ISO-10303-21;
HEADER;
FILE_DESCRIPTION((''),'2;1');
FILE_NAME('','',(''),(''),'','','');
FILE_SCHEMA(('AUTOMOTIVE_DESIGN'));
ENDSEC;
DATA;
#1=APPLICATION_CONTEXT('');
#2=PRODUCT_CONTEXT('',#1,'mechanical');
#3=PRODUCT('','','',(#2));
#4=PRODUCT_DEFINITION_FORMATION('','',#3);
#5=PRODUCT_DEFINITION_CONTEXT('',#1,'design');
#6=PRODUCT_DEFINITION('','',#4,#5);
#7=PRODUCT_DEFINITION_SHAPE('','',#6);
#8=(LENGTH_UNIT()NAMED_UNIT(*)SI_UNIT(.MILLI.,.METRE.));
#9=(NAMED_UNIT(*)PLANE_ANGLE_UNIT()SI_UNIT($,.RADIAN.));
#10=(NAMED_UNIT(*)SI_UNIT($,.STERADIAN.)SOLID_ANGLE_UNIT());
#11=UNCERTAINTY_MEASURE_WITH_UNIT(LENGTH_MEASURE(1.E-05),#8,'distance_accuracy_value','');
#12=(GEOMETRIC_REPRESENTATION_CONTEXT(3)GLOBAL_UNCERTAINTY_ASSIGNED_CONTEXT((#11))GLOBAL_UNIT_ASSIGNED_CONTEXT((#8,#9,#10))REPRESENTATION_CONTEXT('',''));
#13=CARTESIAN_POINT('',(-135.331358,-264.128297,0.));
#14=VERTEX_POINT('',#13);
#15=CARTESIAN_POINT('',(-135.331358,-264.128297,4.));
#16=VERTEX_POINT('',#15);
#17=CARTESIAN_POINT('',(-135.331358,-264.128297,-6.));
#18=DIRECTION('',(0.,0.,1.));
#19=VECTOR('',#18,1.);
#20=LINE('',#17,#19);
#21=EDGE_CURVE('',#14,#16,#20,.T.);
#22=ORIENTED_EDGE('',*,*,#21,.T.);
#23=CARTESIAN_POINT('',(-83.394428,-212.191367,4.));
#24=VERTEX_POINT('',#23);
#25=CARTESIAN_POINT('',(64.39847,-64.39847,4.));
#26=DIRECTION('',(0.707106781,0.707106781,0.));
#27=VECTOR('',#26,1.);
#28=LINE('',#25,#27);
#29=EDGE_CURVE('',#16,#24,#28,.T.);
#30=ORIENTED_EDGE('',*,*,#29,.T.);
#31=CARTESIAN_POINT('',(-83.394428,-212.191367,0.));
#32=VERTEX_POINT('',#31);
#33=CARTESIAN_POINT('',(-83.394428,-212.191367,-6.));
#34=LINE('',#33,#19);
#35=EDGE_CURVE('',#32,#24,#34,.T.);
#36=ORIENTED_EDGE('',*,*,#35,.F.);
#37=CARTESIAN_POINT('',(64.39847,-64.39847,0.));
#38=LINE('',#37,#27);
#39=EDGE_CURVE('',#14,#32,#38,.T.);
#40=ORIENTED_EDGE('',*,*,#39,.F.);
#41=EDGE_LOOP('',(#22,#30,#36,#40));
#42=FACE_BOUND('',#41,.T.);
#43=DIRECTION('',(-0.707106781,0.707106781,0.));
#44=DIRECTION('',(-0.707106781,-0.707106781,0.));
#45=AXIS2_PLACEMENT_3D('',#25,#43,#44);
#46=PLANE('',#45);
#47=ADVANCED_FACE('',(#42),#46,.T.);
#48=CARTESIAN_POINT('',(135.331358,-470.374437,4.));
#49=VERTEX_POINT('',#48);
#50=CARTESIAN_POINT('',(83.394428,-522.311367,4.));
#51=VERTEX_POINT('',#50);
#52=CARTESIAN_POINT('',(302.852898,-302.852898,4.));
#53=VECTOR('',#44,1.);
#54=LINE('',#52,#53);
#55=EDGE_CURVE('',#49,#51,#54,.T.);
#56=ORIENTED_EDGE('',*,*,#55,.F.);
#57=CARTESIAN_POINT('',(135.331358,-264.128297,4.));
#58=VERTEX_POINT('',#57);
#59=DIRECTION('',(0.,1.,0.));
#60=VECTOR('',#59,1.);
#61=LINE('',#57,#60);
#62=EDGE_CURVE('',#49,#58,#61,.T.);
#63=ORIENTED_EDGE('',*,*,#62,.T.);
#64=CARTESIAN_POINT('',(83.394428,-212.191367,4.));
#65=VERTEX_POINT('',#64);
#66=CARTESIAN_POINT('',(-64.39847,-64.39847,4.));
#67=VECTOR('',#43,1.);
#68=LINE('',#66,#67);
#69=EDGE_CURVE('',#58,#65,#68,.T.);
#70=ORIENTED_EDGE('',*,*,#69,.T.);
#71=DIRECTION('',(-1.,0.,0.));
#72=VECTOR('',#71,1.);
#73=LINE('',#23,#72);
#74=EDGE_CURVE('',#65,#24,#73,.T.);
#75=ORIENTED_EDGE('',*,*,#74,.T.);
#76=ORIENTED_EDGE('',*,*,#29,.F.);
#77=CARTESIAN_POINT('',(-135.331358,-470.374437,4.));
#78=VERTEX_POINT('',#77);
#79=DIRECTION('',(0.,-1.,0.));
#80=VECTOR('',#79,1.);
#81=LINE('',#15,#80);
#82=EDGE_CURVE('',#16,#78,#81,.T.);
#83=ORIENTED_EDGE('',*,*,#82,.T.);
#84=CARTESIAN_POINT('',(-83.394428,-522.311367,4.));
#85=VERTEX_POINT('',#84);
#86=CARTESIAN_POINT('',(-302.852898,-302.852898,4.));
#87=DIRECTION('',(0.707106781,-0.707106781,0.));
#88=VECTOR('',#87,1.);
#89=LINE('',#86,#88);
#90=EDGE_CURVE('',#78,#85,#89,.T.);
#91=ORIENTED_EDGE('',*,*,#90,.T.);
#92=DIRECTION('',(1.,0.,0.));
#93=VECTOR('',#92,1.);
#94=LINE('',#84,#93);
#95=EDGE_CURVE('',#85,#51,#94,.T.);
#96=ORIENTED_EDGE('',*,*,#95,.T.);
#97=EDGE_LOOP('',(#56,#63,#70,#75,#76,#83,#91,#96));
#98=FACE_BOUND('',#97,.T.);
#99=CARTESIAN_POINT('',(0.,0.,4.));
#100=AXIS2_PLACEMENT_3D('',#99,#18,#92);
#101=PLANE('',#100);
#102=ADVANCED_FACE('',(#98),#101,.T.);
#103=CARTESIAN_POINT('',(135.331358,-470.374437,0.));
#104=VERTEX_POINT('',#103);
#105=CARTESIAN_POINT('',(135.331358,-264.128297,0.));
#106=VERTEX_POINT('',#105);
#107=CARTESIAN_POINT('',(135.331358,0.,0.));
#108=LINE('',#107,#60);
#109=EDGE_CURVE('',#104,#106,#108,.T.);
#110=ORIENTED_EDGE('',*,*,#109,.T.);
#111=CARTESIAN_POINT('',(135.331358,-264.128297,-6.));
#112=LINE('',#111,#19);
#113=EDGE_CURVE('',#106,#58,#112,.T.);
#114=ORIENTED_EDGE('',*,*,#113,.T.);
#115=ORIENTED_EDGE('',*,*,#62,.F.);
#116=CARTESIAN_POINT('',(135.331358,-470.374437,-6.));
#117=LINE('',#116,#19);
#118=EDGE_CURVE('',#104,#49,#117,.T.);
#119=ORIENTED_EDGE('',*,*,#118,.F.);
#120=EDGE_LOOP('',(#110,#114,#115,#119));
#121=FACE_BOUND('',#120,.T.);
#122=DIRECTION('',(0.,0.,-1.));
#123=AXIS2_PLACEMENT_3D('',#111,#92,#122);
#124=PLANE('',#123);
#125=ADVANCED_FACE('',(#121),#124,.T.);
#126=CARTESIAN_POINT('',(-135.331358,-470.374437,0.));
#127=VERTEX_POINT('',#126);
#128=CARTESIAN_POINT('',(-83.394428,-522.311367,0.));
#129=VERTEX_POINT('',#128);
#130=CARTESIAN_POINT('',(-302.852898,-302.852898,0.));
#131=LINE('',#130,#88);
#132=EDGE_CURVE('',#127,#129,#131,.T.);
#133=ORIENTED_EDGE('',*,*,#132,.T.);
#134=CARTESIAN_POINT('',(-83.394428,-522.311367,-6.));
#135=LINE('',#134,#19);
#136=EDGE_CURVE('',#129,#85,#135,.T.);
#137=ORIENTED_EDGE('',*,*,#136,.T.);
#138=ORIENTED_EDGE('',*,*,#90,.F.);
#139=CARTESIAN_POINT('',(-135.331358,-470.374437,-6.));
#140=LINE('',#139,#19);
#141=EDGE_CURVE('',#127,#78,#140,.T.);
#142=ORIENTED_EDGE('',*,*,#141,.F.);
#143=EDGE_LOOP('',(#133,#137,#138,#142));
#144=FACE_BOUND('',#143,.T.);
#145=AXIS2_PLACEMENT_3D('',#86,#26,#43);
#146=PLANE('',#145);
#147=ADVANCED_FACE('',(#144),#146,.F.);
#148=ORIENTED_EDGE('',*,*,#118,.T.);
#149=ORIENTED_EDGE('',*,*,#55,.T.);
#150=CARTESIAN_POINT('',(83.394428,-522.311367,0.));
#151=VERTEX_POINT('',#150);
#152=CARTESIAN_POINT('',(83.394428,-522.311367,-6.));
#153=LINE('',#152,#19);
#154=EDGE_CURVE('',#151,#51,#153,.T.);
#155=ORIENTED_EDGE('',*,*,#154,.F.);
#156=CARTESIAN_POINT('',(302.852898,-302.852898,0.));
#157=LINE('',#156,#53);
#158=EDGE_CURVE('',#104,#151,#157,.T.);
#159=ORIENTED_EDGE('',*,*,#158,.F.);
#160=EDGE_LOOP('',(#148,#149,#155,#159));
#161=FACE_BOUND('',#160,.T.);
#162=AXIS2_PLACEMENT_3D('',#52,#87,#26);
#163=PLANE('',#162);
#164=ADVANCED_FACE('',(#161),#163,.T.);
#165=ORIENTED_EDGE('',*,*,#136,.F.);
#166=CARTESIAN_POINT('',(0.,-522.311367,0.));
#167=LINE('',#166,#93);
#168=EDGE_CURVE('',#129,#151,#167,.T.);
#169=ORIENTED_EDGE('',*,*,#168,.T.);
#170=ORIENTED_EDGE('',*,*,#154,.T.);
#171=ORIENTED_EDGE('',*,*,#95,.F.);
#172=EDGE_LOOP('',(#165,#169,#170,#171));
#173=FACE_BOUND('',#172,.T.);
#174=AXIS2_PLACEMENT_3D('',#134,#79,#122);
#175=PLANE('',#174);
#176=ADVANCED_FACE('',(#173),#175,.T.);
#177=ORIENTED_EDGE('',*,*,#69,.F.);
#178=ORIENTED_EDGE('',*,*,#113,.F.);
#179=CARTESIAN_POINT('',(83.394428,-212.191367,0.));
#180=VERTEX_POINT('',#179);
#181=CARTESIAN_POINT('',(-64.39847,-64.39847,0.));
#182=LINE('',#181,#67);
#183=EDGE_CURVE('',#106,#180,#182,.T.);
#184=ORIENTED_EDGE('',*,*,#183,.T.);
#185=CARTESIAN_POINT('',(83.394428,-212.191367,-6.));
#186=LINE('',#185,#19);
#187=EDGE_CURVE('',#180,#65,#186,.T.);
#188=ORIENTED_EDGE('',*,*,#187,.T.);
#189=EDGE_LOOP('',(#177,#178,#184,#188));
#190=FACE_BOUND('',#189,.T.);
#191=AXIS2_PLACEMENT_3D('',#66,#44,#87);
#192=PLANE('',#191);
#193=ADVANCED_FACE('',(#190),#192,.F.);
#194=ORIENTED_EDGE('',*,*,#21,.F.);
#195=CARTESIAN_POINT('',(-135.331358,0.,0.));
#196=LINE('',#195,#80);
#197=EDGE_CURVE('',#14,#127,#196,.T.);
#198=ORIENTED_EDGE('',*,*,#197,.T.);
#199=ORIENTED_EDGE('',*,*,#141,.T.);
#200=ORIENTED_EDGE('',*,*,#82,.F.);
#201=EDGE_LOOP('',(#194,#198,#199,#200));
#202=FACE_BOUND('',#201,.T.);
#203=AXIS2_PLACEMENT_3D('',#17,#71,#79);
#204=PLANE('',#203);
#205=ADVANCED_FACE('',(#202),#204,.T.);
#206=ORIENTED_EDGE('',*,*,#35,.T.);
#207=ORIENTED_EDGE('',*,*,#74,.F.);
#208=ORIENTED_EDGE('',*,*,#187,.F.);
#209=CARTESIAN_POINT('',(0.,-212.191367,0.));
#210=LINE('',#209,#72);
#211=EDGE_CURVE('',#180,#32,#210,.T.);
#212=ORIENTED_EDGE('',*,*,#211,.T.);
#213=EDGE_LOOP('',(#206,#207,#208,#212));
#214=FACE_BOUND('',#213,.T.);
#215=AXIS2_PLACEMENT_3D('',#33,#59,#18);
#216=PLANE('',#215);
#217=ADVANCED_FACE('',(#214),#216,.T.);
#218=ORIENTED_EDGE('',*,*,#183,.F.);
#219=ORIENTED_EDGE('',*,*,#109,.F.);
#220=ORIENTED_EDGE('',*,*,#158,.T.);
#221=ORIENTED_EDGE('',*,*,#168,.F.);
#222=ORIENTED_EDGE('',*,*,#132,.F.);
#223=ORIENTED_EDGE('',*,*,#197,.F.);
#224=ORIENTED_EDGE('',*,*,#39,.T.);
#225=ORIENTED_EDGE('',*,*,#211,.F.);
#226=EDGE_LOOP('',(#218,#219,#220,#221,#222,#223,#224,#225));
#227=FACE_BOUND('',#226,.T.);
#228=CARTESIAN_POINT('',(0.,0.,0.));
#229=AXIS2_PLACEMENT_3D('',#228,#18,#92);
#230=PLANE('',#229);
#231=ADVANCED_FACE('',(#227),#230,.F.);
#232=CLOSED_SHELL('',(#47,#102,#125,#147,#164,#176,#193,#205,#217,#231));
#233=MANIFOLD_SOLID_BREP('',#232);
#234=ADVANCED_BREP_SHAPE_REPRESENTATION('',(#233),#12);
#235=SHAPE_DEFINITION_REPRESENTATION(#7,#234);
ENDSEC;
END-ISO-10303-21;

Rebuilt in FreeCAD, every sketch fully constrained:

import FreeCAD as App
import Part
import Sketcher
from FreeCAD import Vector
Q = App.Units.Quantity

doc = App.newDocument("Part")
body = doc.addObject("PartDesign::Body", "Body")

# Sketch on XY plane
sketch1 = body.newObject("Sketcher::SketchObject", "Sketch")
sketch1.AttachmentSupport = (doc.getObject("XY_Plane"), [""])
sketch1.MapMode = "FlatFace"
sketch1.addGeometry(Part.LineSegment(Vector(89, -197, 0), Vector(-89, -197, 0)), False)
sketch1.addGeometry(Part.LineSegment(Vector(-89, -197, 0), Vector(-89, -218, 0)), False)
sketch1.addGeometry(Part.LineSegment(Vector(-89, -218, 0), Vector(-129, -258, 0)), False)
sketch1.addGeometry(Part.LineSegment(Vector(-129, -258, 0), Vector(-150, -258, 0)), False)
sketch1.addGeometry(Part.LineSegment(Vector(-150, -258, 0), Vector(-150, -476, 0)), False)
sketch1.addGeometry(Part.LineSegment(Vector(-150, -476, 0), Vector(-129, -476, 0)), False)
sketch1.addGeometry(Part.LineSegment(Vector(-129, -476, 0), Vector(-89, -517, 0)), False)
sketch1.addGeometry(Part.LineSegment(Vector(-89, -517, 0), Vector(-89, -537, 0)), False)
sketch1.addGeometry(Part.LineSegment(Vector(-89, -537, 0), Vector(89, -537, 0)), False)
sketch1.addGeometry(Part.LineSegment(Vector(89, -537, 0), Vector(89, -517, 0)), False)
sketch1.addGeometry(Part.LineSegment(Vector(89, -517, 0), Vector(129, -476, 0)), False)
sketch1.addGeometry(Part.LineSegment(Vector(129, -476, 0), Vector(150, -476, 0)), False)
sketch1.addGeometry(Part.LineSegment(Vector(150, -476, 0), Vector(150, -258, 0)), False)
sketch1.addGeometry(Part.LineSegment(Vector(150, -258, 0), Vector(129, -258, 0)), False)
sketch1.addGeometry(Part.LineSegment(Vector(129, -258, 0), Vector(89, -218, 0)), False)
sketch1.addGeometry(Part.LineSegment(Vector(89, -218, 0), Vector(89, -197, 0)), False)
sketch1.addConstraint(Sketcher.Constraint("Coincident", 0, 2, 1, 1))
sketch1.addConstraint(Sketcher.Constraint("Coincident", 1, 2, 2, 1))
sketch1.addConstraint(Sketcher.Constraint("Coincident", 2, 2, 3, 1))
sketch1.addConstraint(Sketcher.Constraint("Coincident", 3, 2, 4, 1))
sketch1.addConstraint(Sketcher.Constraint("Coincident", 4, 2, 5, 1))
sketch1.addConstraint(Sketcher.Constraint("Coincident", 5, 2, 6, 1))
sketch1.addConstraint(Sketcher.Constraint("Coincident", 6, 2, 7, 1))
sketch1.addConstraint(Sketcher.Constraint("Coincident", 7, 2, 8, 1))
sketch1.addConstraint(Sketcher.Constraint("Coincident", 8, 2, 9, 1))
sketch1.addConstraint(Sketcher.Constraint("Coincident", 9, 2, 10, 1))
sketch1.addConstraint(Sketcher.Constraint("Coincident", 10, 2, 11, 1))
sketch1.addConstraint(Sketcher.Constraint("Coincident", 11, 2, 12, 1))
sketch1.addConstraint(Sketcher.Constraint("Coincident", 12, 2, 13, 1))
sketch1.addConstraint(Sketcher.Constraint("Coincident", 13, 2, 14, 1))
sketch1.addConstraint(Sketcher.Constraint("Coincident", 14, 2, 15, 1))
sketch1.addConstraint(Sketcher.Constraint("Coincident", 15, 2, 0, 1))
sketch1.addConstraint(Sketcher.Constraint("Horizontal", 0))
sketch1.addConstraint(Sketcher.Constraint("Vertical", 1))
sketch1.addConstraint(Sketcher.Constraint("Horizontal", 3))
sketch1.addConstraint(Sketcher.Constraint("Vertical", 4))
sketch1.addConstraint(Sketcher.Constraint("Horizontal", 5))
sketch1.addConstraint(Sketcher.Constraint("Vertical", 7))
sketch1.addConstraint(Sketcher.Constraint("Horizontal", 8))
sketch1.addConstraint(Sketcher.Constraint("Vertical", 9))
sketch1.addConstraint(Sketcher.Constraint("Horizontal", 11))
sketch1.addConstraint(Sketcher.Constraint("Vertical", 12))
sketch1.addConstraint(Sketcher.Constraint("Horizontal", 13))
sketch1.addConstraint(Sketcher.Constraint("Vertical", 15))
sketch1.addConstraint(Sketcher.Constraint("Symmetric", 6, 2, 9, 2, -2))
sketch1.addConstraint(Sketcher.Constraint("Symmetric", 5, 2, 10, 2, -2))
sketch1.addConstraint(Sketcher.Constraint("Symmetric", 3, 2, 12, 2, -2))
sketch1.addConstraint(Sketcher.Constraint("Symmetric", 1, 2, 14, 2, -2))
sketch1.addConstraint(Sketcher.Constraint("Perpendicular", 2, 6))
sketch1.addConstraint(Sketcher.Constraint("Perpendicular", 6, 10))
sketch1.addConstraint(Sketcher.Constraint("Perpendicular", 10, 14))
sketch1.addConstraint(Sketcher.Constraint("Vertical", 2, 2, 5, 2))
sketch1.addConstraint(Sketcher.Constraint("Vertical", 1, 2, 6, 2))
sketch1.addConstraint(Sketcher.Constraint("Equal", 1, 7))
sketch1.addConstraint(Sketcher.Constraint("DistanceY", 4, 2, 4, 1, Q("217.999999 mm")))
sketch1.addConstraint(Sketcher.Constraint("DistanceX", 4, 2, 8, 2, Q("239 mm")))
sketch1.addConstraint(Sketcher.Constraint("DistanceY", 2, 2, 0, 2, Q("60.860001 mm")))
sketch1.addConstraint(Sketcher.Constraint("DistanceX", 3, 2, 3, 1, Q("20.676929 mm")))
sketch1.addConstraint(Sketcher.Constraint("Distance", 2, Q("57.39697 mm")))
sketch1.addConstraint(Sketcher.Constraint("DistanceY", 1, 2, -1, 1, Q("217.665582 mm")))
pad1 = body.newObject("PartDesign::Pad", "Pad")
pad1.Profile = sketch1
pad1.Length = 4

# Sketch on XY plane
sketch2 = body.newObject("Sketcher::SketchObject", "Sketch001")
sketch2.AttachmentSupport = (doc.getObject("XY_Plane"), [""])
sketch2.MapMode = "FlatFace"
sketch2.AttachmentOffset = App.Placement(Vector(0, 0, 4), App.Rotation())
sketch2.addGeometry(Part.LineSegment(Vector(-189, -161, 0), Vector(-189, -586, 0)), False)
sketch2.addGeometry(Part.LineSegment(Vector(-189, -586, 0), Vector(240, -586, 0)), False)
sketch2.addGeometry(Part.LineSegment(Vector(240, -586, 0), Vector(240, -161, 0)), False)
sketch2.addGeometry(Part.LineSegment(Vector(240, -161, 0), Vector(-189, -161, 0)), False)
sketch2.addGeometry(Part.LineSegment(Vector(-135, -264, 0), Vector(-83, -212, 0)), False)
sketch2.addGeometry(Part.LineSegment(Vector(-83, -212, 0), Vector(83, -212, 0)), False)
sketch2.addGeometry(Part.LineSegment(Vector(83, -212, 0), Vector(135, -264, 0)), False)
sketch2.addGeometry(Part.LineSegment(Vector(135, -264, 0), Vector(135, -470, 0)), False)
sketch2.addGeometry(Part.LineSegment(Vector(135, -470, 0), Vector(83, -522, 0)), False)
sketch2.addGeometry(Part.LineSegment(Vector(83, -522, 0), Vector(-83, -522, 0)), False)
sketch2.addGeometry(Part.LineSegment(Vector(-83, -522, 0), Vector(-135, -470, 0)), False)
sketch2.addGeometry(Part.LineSegment(Vector(-135, -470, 0), Vector(-135, -264, 0)), False)
sketch2.addConstraint(Sketcher.Constraint("Coincident", 0, 2, 1, 1))
sketch2.addConstraint(Sketcher.Constraint("Coincident", 1, 2, 2, 1))
sketch2.addConstraint(Sketcher.Constraint("Coincident", 2, 2, 3, 1))
sketch2.addConstraint(Sketcher.Constraint("Coincident", 3, 2, 0, 1))
sketch2.addConstraint(Sketcher.Constraint("Coincident", 4, 2, 5, 1))
sketch2.addConstraint(Sketcher.Constraint("Coincident", 5, 2, 6, 1))
sketch2.addConstraint(Sketcher.Constraint("Coincident", 6, 2, 7, 1))
sketch2.addConstraint(Sketcher.Constraint("Coincident", 7, 2, 8, 1))
sketch2.addConstraint(Sketcher.Constraint("Coincident", 8, 2, 9, 1))
sketch2.addConstraint(Sketcher.Constraint("Coincident", 9, 2, 10, 1))
sketch2.addConstraint(Sketcher.Constraint("Coincident", 10, 2, 11, 1))
sketch2.addConstraint(Sketcher.Constraint("Coincident", 11, 2, 4, 1))
sketch2.addConstraint(Sketcher.Constraint("Vertical", 0))
sketch2.addConstraint(Sketcher.Constraint("Horizontal", 1))
sketch2.addConstraint(Sketcher.Constraint("Vertical", 2))
sketch2.addConstraint(Sketcher.Constraint("Horizontal", 3))
sketch2.addConstraint(Sketcher.Constraint("Horizontal", 5))
sketch2.addConstraint(Sketcher.Constraint("Vertical", 7))
sketch2.addConstraint(Sketcher.Constraint("Horizontal", 9))
sketch2.addConstraint(Sketcher.Constraint("Vertical", 11))
sketch2.addConstraint(Sketcher.Constraint("Symmetric", 7, 2, 10, 2, -2))
sketch2.addConstraint(Sketcher.Constraint("Perpendicular", 4, 6))
sketch2.addConstraint(Sketcher.Constraint("Perpendicular", 6, 8))
sketch2.addConstraint(Sketcher.Constraint("Perpendicular", 8, 10))
sketch2.addConstraint(Sketcher.Constraint("Horizontal", 6, 2, 11, 2))
sketch2.addConstraint(Sketcher.Constraint("Vertical", 5, 2, 8, 2))
sketch2.addConstraint(Sketcher.Constraint("Vertical", 4, 2, 9, 2))
sketch2.addConstraint(Sketcher.Constraint("DistanceY", 8, 2, 5, 2, Q("310.12 mm")))
sketch2.addConstraint(Sketcher.Constraint("DistanceX", 1, 1, 1, 2, Q("429.121378 mm")))
sketch2.addConstraint(Sketcher.Constraint("DistanceY", 7, 2, 7, 1, Q("206.24614 mm")))
sketch2.addConstraint(Sketcher.Constraint("DistanceX", 5, 1, 5, 2, Q("166.788856 mm")))
sketch2.addConstraint(Sketcher.Constraint("DistanceY", 0, 2, 0, 1, Q("424.720133 mm")))
sketch2.addConstraint(Sketcher.Constraint("DistanceY", 0, 2, 4, 2, Q("373.915458 mm")))
sketch2.addConstraint(Sketcher.Constraint("DistanceX", 5, 2, 2, 2, Q("156.510388 mm")))
sketch2.addConstraint(Sketcher.Constraint("DistanceY", 0, 2, -1, 1, Q("586.106826 mm")))
pocket1 = body.newObject("PartDesign::Pocket", "Pocket")
pocket1.Profile = sketch2
pocket1.Length = 10

doc.recompute()
